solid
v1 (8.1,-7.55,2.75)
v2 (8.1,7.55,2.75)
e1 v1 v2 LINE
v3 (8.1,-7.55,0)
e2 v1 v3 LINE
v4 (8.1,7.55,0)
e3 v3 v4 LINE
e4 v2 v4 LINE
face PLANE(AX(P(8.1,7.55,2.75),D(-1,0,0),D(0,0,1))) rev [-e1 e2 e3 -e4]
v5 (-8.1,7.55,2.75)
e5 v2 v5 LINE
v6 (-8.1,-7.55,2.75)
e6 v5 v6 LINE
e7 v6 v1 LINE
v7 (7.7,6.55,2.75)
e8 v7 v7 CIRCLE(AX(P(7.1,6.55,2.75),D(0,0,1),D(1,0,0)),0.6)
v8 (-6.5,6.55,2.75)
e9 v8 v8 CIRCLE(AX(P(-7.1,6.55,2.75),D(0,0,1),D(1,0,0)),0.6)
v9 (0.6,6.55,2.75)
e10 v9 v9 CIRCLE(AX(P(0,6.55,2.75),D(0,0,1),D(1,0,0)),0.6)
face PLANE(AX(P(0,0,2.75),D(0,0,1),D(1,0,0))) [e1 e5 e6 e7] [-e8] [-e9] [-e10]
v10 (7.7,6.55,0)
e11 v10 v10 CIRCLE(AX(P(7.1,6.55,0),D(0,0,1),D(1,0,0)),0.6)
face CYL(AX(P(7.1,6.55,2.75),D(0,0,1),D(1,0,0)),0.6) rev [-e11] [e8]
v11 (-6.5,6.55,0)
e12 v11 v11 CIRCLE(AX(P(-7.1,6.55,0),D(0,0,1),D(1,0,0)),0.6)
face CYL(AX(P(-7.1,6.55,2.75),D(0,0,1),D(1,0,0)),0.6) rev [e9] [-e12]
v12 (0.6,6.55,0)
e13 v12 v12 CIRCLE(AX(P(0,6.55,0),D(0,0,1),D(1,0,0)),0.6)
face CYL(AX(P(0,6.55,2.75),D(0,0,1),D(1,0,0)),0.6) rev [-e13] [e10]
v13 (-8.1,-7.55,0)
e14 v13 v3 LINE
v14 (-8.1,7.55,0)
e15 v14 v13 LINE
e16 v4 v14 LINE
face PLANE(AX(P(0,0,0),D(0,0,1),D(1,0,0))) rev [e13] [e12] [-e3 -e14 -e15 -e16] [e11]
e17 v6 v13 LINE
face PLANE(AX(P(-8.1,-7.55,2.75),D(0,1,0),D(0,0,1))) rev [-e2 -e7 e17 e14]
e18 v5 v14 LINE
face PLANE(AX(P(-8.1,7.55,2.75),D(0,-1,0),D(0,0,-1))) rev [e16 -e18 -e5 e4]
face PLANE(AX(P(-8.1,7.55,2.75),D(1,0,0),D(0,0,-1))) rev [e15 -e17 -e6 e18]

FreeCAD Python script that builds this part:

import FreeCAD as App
import Part
import Sketcher

V = App.Vector
Q = App.Units.Quantity


def add_polygon(sketch, points):
    """Adds a closed chain of lines whose ends are joined by coincident constraints."""
    first, n = sketch.GeometryCount, len(points)
    for a, b in zip(points, points[1:] + points[:1]):
        sketch.addGeometry(Part.LineSegment(App.Vector(*a, 0), App.Vector(*b, 0)), False)
    for i in range(n):
        sketch.addConstraint(Sketcher.Constraint("Coincident", first + i, 2, first + (i + 1) % n, 1))

doc = App.newDocument("Part")
body = doc.addObject("PartDesign::Body", "Body")

sketch1 = body.newObject("Sketcher::SketchObject", "Sketch")
sketch1.AttachmentSupport = (doc.getObject("XY_Plane"), [""])
sketch1.MapMode = "FlatFace"
add_polygon(sketch1, [(-8.1, 7.55), (-8.1, -7.55), (8.1, -7.55), (8.1, 7.55)])
sketch1.addConstraint(Sketcher.Constraint("Vertical", 0))
sketch1.addConstraint(Sketcher.Constraint("Horizontal", 1))
sketch1.addConstraint(Sketcher.Constraint("Vertical", 2))
sketch1.addConstraint(Sketcher.Constraint("Horizontal", 3))
sketch1.addConstraint(Sketcher.Constraint("Symmetric", 0, 2, 2, 2, -1, 1))
sketch1.addConstraint(Sketcher.Constraint("DistanceX", 1, 1, 1, 2, 16.2))
sketch1.addConstraint(Sketcher.Constraint("DistanceY", 0, 2, 0, 1, 15.1))
pad1 = body.newObject("PartDesign::Pad", "Pad")
pad1.Profile = sketch1
pad1.Length = 2.75

sketch2 = body.newObject("Sketcher::SketchObject", "Sketch001")
sketch2.AttachmentSupport = (doc.getObject("YZ_Plane"), [""])
sketch2.MapMode = "FlatFace"
sketch2.AttachmentOffset = App.Placement(V(0, 0, 7.1), App.Rotation())
add_polygon(sketch2, [(6.55, -0.760516), (6.55, 2.75), (5.95, 2.75), (5.95, -0.4)])
sketch2.addGeometry(Part.LineSegment(V(6.55, 2.75, 0), V(6.55, -0.760516, 0)), True)
sketch2.addConstraint(Sketcher.Constraint("Vertical", 0))
sketch2.addConstraint(Sketcher.Constraint("Horizontal", 1))
sketch2.addConstraint(Sketcher.Constraint("Vertical", 2))
sketch2.addConstraint(Sketcher.Constraint("Vertical", 4))
sketch2.addConstraint(Sketcher.Constraint("Coincident", 4, 1, 0, 2))
sketch2.addConstraint(Sketcher.Constraint("Equal", 0, 4))
sketch2.addConstraint(Sketcher.Constraint("Angle", 3, Q("-31 deg")))
sketch2.addConstraint(Sketcher.Constraint("DistanceX", 1, 2, 1, 1, 0.6))
sketch2.addConstraint(Sketcher.Constraint("DistanceY", 2, 2, 2, 1, 3.15))
sketch2.addConstraint(Sketcher.Constraint("DistanceY", 2, 2, -1, 1, 0.4))
sketch2.addConstraint(Sketcher.Constraint("DistanceX", -1, 1, 0, 2, 6.55))
groove = body.newObject("PartDesign::Groove", "Groove")
groove.Profile = sketch2
groove.ReferenceAxis = (sketch2, ["Axis0"])
groove.Angle = 360
doc.recompute()

mirrored = body.newObject("PartDesign::Mirrored", "Mirrored")
mirrored.Originals = [groove]
mirrored.MirrorPlane = (doc.getObject("YZ_Plane"), [""])
body.Tip = mirrored

sketch3 = body.newObject("Sketcher::SketchObject", "Sketch002")
sketch3.AttachmentSupport = (doc.getObject("XY_Plane"), [""])
sketch3.MapMode = "FlatFace"
sketch3.AttachmentOffset = App.Placement(V(0, 0, 2.75), App.Rotation())
sketch3.addGeometry(Part.Circle(V(0, 6.55, 0), V(0, 0, 1), 0.6), False)
sketch3.addConstraint(Sketcher.Constraint("PointOnObject", 0, 3, -2))
sketch3.addConstraint(Sketcher.Constraint("Diameter", 0, 1.2))
sketch3.addConstraint(Sketcher.Constraint("DistanceY", -1, 1, 0, 3, 6.55))
doc.recompute()
hole = body.newObject("PartDesign::Hole", "Hole")
hole.Profile = sketch3
hole.ThreadType = "None"
hole.Diameter = 1.2
hole.DepthType = "Dimension"
hole.Depth = 2.75
hole.DrillPoint = "Flat"

doc.recompute()
